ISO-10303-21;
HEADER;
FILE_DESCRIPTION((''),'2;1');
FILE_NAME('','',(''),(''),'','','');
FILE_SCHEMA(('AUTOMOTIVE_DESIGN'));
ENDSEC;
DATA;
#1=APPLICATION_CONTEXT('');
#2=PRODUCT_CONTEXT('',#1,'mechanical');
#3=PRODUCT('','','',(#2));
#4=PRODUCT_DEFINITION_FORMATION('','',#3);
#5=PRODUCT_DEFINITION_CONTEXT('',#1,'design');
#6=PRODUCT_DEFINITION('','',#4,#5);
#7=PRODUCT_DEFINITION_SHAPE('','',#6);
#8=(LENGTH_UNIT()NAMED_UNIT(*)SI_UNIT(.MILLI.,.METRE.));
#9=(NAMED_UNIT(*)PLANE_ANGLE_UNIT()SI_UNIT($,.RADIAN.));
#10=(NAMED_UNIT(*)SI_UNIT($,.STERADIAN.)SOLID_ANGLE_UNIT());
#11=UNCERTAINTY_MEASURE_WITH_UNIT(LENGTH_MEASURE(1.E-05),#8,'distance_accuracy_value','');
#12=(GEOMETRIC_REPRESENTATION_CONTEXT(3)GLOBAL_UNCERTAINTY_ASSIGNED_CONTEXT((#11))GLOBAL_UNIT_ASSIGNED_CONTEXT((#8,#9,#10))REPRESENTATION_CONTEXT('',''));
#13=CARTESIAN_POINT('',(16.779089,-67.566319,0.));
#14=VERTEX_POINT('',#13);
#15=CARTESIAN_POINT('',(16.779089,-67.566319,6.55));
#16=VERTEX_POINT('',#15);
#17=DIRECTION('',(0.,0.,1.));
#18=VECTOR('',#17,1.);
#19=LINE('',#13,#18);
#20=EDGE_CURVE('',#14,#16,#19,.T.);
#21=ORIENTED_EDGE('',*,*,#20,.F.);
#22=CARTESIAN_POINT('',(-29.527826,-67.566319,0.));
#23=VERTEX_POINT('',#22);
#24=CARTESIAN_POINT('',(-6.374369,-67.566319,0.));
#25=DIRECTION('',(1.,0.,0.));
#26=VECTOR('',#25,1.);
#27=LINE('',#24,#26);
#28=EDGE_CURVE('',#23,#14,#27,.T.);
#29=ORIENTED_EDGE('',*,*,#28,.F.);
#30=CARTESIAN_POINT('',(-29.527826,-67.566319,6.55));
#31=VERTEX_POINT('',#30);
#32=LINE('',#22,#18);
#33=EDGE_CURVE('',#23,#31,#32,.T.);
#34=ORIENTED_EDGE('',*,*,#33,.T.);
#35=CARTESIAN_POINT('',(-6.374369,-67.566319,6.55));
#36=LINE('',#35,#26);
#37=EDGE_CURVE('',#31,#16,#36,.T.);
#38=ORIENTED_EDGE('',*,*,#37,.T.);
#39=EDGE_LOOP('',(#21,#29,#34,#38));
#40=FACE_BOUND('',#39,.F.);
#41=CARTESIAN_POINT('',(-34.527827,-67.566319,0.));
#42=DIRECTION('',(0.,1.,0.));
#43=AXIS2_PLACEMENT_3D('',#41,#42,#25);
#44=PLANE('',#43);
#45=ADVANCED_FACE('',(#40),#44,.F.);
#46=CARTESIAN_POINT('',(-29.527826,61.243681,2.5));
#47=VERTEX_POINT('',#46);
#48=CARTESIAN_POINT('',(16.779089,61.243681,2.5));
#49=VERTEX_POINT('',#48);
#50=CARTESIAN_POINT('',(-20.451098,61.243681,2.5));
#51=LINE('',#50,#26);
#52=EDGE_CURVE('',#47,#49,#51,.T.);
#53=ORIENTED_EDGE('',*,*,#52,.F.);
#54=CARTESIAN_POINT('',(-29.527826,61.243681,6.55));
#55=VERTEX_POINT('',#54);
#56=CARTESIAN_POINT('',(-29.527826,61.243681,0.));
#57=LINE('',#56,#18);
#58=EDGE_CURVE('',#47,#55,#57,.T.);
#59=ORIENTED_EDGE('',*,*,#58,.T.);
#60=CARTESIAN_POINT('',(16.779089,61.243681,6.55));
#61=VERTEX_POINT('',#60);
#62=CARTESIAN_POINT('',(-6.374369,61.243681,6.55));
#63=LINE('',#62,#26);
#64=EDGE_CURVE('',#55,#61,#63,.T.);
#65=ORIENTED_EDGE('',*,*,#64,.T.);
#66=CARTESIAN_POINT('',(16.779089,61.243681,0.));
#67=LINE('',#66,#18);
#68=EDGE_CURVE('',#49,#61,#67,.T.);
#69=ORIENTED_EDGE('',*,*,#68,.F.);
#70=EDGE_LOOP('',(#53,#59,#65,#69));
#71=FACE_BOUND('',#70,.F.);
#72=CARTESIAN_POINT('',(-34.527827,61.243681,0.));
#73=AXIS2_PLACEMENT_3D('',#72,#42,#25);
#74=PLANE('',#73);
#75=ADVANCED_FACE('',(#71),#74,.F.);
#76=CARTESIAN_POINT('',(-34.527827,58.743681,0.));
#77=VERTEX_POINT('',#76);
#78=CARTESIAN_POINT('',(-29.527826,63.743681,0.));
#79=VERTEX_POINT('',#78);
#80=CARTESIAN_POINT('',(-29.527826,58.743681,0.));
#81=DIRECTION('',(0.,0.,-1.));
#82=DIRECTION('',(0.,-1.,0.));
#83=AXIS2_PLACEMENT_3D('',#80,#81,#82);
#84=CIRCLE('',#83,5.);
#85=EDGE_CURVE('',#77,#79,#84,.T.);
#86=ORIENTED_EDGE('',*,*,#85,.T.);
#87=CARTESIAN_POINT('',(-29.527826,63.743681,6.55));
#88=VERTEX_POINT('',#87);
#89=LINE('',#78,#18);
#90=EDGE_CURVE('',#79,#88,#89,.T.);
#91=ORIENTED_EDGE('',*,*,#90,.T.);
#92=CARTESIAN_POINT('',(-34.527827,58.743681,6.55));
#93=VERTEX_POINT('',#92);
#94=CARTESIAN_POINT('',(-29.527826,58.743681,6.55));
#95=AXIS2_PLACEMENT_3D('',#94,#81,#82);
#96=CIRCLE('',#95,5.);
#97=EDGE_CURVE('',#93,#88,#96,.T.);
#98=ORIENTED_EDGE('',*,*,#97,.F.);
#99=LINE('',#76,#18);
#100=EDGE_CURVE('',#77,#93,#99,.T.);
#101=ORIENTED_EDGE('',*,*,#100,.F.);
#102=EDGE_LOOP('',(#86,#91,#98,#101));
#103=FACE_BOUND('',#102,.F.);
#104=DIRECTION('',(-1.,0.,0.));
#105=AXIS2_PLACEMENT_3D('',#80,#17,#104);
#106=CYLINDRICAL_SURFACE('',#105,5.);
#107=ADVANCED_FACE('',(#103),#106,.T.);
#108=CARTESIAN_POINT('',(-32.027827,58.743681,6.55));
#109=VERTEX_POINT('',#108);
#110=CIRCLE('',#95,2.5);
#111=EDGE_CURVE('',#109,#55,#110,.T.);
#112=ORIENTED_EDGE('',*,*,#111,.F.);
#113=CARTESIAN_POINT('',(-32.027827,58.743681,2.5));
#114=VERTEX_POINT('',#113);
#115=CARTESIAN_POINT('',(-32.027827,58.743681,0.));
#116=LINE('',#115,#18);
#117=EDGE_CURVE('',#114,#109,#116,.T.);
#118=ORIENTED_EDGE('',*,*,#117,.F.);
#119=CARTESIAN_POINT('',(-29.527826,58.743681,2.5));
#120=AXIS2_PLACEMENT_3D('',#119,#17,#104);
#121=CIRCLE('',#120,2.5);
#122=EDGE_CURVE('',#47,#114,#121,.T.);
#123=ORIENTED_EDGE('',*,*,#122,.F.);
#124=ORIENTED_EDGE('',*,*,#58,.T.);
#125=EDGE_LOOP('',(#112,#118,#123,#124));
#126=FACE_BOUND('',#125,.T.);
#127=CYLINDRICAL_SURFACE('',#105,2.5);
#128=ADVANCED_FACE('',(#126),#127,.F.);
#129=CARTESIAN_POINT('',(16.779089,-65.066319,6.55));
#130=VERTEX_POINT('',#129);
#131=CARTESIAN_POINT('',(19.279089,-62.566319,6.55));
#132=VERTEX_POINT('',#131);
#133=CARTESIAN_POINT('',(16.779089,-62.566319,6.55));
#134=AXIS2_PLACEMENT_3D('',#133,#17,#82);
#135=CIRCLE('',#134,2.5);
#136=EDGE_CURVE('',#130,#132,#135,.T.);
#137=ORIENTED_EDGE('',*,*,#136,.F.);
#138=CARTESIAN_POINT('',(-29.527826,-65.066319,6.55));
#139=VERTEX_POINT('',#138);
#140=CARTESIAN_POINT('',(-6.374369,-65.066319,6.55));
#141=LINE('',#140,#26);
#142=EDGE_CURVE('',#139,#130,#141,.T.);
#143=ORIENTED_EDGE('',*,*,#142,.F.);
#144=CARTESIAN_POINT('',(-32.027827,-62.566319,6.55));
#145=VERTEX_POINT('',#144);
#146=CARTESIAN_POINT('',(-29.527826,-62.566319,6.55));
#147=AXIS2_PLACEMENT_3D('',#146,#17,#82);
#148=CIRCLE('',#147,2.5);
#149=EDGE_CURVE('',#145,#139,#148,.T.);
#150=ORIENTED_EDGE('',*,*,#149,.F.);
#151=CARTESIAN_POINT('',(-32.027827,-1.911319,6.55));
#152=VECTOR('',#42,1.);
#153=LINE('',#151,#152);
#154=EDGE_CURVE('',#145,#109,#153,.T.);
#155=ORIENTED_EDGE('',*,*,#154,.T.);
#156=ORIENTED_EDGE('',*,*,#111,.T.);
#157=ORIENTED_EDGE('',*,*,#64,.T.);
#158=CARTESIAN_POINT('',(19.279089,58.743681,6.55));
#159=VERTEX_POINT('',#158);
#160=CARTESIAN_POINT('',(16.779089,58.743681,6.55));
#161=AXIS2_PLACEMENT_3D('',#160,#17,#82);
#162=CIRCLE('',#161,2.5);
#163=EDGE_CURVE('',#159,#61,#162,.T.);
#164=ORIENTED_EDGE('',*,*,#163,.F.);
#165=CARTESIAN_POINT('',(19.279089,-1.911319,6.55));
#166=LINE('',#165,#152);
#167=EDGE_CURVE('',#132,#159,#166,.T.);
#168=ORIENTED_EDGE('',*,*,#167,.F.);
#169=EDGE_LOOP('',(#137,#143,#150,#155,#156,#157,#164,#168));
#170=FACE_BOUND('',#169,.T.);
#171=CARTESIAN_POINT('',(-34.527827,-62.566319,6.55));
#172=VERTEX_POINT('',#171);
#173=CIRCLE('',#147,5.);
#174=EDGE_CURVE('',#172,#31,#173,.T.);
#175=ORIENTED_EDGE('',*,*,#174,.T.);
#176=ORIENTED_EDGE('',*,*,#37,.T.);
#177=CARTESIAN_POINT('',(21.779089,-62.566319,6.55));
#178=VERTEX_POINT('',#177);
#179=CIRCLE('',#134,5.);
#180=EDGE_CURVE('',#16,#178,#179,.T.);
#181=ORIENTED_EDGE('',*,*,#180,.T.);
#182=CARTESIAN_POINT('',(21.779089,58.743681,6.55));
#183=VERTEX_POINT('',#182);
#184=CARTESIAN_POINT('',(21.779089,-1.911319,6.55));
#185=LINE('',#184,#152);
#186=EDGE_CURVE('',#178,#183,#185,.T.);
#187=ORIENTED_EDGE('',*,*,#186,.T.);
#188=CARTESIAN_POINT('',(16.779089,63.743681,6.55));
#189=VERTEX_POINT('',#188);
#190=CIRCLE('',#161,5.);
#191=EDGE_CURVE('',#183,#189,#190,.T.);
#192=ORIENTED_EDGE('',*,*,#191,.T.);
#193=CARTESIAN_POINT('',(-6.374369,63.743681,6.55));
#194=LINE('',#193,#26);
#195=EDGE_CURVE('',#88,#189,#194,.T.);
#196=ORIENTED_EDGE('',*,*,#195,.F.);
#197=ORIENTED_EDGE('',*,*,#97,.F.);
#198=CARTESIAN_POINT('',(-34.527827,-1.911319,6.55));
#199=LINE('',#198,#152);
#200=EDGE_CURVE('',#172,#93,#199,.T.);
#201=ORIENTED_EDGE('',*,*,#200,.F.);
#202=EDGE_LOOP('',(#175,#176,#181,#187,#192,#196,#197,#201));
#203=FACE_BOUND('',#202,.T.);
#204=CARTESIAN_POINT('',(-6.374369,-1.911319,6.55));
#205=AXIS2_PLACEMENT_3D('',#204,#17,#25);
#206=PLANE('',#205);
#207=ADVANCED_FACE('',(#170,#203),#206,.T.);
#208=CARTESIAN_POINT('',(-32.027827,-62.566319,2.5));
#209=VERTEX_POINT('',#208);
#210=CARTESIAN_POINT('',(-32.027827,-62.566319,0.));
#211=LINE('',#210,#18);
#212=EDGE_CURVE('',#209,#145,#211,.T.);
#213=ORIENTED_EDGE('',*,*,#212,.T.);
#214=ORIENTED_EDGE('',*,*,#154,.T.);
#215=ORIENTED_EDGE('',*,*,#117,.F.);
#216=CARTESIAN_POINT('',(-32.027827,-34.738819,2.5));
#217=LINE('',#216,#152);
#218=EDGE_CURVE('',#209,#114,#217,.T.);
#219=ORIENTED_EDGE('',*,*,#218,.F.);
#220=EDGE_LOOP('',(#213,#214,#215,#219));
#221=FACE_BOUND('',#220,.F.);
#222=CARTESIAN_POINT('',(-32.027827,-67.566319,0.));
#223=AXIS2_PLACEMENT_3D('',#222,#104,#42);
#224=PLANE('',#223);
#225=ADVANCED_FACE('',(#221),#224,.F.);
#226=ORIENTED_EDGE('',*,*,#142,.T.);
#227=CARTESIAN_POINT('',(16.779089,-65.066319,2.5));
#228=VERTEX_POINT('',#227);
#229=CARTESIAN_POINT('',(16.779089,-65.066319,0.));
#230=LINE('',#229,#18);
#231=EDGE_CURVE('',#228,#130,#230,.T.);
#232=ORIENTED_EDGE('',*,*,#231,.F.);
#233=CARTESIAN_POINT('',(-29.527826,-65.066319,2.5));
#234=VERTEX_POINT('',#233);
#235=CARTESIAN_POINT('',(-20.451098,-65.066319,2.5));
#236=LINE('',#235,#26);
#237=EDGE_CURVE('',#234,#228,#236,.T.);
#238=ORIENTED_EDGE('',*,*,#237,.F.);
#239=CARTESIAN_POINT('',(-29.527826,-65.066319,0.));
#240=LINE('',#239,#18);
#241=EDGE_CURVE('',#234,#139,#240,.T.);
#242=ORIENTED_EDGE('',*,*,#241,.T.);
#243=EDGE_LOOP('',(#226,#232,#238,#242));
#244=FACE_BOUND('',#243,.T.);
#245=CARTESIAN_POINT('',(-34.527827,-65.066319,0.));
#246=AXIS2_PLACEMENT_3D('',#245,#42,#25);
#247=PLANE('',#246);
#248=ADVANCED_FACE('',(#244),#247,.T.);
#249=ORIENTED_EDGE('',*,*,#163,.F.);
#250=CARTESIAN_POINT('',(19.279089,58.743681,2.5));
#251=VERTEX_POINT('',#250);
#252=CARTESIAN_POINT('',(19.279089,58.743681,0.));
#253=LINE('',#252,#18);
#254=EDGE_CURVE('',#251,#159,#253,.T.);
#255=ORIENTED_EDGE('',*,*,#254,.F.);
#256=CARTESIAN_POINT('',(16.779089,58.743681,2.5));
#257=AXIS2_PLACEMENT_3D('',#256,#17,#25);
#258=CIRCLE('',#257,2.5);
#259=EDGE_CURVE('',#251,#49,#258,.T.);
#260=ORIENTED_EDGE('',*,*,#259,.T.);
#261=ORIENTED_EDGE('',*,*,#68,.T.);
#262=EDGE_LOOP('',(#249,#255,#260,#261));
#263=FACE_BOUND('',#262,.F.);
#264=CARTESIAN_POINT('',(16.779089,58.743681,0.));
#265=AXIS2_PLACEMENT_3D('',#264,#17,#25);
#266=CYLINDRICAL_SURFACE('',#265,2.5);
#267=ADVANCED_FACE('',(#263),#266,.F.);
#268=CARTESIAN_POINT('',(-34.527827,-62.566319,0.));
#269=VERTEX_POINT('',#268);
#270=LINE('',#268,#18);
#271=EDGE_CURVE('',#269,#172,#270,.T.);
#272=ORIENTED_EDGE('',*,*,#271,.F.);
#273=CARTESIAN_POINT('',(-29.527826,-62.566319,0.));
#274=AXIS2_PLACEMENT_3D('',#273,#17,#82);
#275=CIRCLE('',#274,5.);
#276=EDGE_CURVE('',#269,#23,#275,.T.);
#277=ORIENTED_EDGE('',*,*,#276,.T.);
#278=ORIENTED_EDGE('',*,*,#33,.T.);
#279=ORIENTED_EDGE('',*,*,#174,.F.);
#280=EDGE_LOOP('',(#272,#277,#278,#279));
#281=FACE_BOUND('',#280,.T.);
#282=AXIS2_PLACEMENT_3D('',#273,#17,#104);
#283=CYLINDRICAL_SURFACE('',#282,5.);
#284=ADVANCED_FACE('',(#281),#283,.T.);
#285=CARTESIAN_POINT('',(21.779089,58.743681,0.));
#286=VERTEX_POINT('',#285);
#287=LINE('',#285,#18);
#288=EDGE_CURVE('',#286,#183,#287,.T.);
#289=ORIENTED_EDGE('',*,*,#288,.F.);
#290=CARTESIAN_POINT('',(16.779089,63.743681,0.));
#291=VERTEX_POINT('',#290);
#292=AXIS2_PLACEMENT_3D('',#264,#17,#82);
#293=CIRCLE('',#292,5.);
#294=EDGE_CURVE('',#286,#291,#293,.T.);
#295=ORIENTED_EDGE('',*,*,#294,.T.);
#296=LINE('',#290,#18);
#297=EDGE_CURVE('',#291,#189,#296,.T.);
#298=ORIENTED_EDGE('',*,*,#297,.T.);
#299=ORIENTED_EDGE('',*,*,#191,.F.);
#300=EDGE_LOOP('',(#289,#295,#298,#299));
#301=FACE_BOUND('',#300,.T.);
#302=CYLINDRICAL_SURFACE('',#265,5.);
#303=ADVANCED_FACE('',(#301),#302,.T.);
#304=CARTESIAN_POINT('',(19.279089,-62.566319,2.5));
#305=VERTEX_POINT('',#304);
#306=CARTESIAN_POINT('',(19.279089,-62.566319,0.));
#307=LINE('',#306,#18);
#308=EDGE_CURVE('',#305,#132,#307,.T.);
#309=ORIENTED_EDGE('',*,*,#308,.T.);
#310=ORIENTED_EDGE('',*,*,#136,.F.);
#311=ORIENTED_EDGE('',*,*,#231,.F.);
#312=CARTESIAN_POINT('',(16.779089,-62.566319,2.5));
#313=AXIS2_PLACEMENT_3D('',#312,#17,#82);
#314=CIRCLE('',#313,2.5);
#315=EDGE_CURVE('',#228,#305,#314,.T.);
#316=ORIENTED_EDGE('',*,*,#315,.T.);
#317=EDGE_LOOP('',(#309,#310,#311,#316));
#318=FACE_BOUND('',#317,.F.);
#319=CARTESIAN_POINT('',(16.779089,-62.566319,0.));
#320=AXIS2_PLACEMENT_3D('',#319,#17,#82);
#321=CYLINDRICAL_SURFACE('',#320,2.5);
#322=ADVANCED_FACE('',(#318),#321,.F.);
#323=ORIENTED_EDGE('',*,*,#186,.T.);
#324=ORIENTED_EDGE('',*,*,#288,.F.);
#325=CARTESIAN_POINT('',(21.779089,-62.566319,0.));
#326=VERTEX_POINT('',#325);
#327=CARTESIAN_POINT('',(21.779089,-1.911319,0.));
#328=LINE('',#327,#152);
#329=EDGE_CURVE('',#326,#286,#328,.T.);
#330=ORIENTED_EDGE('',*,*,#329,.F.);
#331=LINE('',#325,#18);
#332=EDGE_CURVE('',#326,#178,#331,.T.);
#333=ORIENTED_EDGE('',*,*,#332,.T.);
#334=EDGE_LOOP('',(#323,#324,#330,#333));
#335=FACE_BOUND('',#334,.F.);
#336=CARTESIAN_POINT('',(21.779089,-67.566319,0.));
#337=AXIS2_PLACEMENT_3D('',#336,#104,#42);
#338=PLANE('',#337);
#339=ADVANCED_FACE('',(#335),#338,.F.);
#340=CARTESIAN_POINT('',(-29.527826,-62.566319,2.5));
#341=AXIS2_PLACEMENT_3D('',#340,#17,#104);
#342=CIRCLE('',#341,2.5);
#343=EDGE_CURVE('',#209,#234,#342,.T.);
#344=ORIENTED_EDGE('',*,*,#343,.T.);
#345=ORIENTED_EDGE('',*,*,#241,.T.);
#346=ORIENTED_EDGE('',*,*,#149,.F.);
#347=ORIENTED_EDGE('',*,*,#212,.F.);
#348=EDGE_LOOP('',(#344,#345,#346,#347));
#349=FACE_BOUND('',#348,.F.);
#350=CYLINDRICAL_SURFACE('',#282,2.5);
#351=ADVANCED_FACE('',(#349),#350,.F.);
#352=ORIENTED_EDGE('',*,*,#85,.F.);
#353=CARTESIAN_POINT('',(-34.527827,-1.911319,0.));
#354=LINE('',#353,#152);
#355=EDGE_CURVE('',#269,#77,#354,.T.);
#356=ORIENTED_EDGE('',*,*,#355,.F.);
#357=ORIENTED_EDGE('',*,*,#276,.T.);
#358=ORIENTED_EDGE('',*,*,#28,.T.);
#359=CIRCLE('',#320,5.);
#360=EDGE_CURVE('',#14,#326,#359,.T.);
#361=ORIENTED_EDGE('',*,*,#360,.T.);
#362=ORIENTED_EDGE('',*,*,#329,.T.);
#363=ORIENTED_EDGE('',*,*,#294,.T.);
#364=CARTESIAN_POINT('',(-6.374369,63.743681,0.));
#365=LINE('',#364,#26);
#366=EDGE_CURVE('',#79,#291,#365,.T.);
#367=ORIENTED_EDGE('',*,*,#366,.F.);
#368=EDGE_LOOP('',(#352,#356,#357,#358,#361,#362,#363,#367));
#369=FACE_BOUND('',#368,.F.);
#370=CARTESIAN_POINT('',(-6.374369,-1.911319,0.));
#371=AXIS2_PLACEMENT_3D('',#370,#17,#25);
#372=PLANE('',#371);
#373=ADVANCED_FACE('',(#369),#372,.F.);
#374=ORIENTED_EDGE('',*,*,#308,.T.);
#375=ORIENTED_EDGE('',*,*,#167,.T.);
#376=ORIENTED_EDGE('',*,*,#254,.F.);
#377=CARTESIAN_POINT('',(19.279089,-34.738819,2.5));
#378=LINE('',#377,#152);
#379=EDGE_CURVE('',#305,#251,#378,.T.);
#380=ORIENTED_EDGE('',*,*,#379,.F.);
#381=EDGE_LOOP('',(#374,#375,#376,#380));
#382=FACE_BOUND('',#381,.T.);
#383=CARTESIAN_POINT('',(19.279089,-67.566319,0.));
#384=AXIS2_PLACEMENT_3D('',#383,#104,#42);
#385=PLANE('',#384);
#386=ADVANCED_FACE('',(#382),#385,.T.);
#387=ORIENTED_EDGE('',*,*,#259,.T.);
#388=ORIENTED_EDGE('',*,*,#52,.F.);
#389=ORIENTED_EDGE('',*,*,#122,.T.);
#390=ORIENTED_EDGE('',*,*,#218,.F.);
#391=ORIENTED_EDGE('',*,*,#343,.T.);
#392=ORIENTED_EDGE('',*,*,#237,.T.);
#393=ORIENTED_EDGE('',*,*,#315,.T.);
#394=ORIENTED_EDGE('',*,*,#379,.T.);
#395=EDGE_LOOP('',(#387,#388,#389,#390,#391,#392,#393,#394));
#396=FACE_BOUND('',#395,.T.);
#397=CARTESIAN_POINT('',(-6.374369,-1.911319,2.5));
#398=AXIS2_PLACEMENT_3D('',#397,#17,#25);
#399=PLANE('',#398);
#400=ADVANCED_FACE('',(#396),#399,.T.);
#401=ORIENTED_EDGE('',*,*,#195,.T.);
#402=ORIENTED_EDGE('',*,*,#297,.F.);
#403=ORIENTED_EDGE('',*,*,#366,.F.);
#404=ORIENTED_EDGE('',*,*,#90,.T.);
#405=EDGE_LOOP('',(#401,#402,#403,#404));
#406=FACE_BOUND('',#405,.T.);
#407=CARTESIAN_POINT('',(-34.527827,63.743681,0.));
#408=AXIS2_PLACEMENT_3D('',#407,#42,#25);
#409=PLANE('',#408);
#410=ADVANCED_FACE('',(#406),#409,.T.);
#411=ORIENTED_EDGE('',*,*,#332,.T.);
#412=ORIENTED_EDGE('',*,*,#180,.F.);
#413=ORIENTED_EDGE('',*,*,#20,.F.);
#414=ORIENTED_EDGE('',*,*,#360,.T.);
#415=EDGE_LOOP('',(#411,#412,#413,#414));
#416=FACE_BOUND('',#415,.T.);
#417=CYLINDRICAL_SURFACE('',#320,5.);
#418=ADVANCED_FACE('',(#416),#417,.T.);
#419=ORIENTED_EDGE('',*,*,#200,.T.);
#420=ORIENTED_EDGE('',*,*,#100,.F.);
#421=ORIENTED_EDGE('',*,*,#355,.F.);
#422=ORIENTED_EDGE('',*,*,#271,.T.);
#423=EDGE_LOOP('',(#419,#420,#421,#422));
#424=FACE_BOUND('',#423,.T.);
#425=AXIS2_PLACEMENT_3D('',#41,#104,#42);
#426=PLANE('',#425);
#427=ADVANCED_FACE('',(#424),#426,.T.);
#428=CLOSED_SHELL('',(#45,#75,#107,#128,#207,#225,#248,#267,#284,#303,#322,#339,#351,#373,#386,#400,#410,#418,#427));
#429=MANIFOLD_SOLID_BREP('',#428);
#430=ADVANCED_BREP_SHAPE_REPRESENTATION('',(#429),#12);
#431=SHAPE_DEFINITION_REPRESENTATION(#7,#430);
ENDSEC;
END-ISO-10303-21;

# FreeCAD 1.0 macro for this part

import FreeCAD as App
import Part
import Sketcher
from FreeCAD import Vector


def edges_at(feature, points):
    """Names of the edges that pass closest to the given points."""
    edges = feature.Shape.Edges
    near = lambda p: min(range(len(edges)), key=lambda i: edges[i].distToShape(Part.Vertex(*p))[0])
    return sorted({f"Edge{near(p) + 1}" for p in points})


def faces_at(feature, points):
    """Names of the faces that lie closest to the given points."""
    faces = feature.Shape.Faces
    near = lambda p: min(range(len(faces)), key=lambda i: faces[i].distToShape(Part.Vertex(*p))[0])
    return sorted({f"Face{near(p) + 1}" for p in points})


def add_polygon(sketch, points):
    """Adds a closed chain of lines whose ends are joined by coincident constraints."""
    first, n = sketch.GeometryCount, len(points)
    for a, b in zip(points, points[1:] + points[:1]):
        sketch.addGeometry(Part.LineSegment(App.Vector(*a, 0), App.Vector(*b, 0)), False)
    for i in range(n):
        sketch.addConstraint(Sketcher.Constraint("Coincident", first + i, 2, first + (i + 1) % n, 1))

doc = App.newDocument("Part")
params = doc.addObject("Spreadsheet::Sheet", "Params")
for row, (alias, value) in enumerate([
    ("sketch1_height", "131.31 mm"),
    ("pad1_length", "6.55 mm"),
    ("fillet_radius", "5 mm"),
    ("thickness_wall", "2.5 mm"),
], start=1):
    params.set(f"A{row}", alias)
    params.set(f"B{row}", "=" + value)
    params.setAlias(f"B{row}", alias)

body = doc.addObject("PartDesign::Body", "Body")

sketch1 = doc.addObject("Sketcher::SketchObject", "Sketch")
body.addObject(sketch1)
sketch1.AttachmentSupport = (doc.XY_Plane, [""])
sketch1.MapMode = "FlatFace"
add_polygon(sketch1, [(-35, 64), (-35, -68), (22, -68), (22, 64)])
sketch1.addConstraint([
    Sketcher.Constraint("Vertical", 0),
    Sketcher.Constraint("Horizontal", 1),
    Sketcher.Constraint("Vertical", 2),
    Sketcher.Constraint("Horizontal", 3),
    Sketcher.Constraint("DistanceY", 0, 2, 0, 1, 131.31),
    Sketcher.Constraint("DistanceX", 1, 1, 1, 2, 56.306915),
    Sketcher.Constraint("DistanceY", 0, 2, -1, 1, 67.566319),
    Sketcher.Constraint("DistanceX", -1, 1, 1, 2, 21.779089),
])
sketch1.setExpression("Constraints[8]", "Params.sketch1_height")
pad1 = doc.addObject("PartDesign::Pad", "Pad")
body.addObject(pad1)
pad1.Profile = sketch1
pad1.setExpression("Length", "Params.pad1_length")
doc.recompute()

fillet = doc.addObject("PartDesign::Fillet", "Fillet")
body.addObject(fillet)
fillet.Base = (pad1, edges_at(pad1, [
    (21.779, 63.744, 3.275),
    (21.779, -67.566, 3.275),
    (-34.528, -67.566, 3.275),
    (-34.528, 63.744, 3.275),
]))
fillet.setExpression("Radius", "Params.fillet_radius")
doc.recompute()

thickness = doc.addObject("PartDesign::Thickness", "Thickness")
body.addObject(thickness)
thickness.Base = (fillet, faces_at(fillet, [(-6.374, -1.911, 6.55)]))
thickness.setExpression("Value", "Params.thickness_wall")
thickness.Reversed = True
thickness.Join = "Arc"

doc.recompute()
